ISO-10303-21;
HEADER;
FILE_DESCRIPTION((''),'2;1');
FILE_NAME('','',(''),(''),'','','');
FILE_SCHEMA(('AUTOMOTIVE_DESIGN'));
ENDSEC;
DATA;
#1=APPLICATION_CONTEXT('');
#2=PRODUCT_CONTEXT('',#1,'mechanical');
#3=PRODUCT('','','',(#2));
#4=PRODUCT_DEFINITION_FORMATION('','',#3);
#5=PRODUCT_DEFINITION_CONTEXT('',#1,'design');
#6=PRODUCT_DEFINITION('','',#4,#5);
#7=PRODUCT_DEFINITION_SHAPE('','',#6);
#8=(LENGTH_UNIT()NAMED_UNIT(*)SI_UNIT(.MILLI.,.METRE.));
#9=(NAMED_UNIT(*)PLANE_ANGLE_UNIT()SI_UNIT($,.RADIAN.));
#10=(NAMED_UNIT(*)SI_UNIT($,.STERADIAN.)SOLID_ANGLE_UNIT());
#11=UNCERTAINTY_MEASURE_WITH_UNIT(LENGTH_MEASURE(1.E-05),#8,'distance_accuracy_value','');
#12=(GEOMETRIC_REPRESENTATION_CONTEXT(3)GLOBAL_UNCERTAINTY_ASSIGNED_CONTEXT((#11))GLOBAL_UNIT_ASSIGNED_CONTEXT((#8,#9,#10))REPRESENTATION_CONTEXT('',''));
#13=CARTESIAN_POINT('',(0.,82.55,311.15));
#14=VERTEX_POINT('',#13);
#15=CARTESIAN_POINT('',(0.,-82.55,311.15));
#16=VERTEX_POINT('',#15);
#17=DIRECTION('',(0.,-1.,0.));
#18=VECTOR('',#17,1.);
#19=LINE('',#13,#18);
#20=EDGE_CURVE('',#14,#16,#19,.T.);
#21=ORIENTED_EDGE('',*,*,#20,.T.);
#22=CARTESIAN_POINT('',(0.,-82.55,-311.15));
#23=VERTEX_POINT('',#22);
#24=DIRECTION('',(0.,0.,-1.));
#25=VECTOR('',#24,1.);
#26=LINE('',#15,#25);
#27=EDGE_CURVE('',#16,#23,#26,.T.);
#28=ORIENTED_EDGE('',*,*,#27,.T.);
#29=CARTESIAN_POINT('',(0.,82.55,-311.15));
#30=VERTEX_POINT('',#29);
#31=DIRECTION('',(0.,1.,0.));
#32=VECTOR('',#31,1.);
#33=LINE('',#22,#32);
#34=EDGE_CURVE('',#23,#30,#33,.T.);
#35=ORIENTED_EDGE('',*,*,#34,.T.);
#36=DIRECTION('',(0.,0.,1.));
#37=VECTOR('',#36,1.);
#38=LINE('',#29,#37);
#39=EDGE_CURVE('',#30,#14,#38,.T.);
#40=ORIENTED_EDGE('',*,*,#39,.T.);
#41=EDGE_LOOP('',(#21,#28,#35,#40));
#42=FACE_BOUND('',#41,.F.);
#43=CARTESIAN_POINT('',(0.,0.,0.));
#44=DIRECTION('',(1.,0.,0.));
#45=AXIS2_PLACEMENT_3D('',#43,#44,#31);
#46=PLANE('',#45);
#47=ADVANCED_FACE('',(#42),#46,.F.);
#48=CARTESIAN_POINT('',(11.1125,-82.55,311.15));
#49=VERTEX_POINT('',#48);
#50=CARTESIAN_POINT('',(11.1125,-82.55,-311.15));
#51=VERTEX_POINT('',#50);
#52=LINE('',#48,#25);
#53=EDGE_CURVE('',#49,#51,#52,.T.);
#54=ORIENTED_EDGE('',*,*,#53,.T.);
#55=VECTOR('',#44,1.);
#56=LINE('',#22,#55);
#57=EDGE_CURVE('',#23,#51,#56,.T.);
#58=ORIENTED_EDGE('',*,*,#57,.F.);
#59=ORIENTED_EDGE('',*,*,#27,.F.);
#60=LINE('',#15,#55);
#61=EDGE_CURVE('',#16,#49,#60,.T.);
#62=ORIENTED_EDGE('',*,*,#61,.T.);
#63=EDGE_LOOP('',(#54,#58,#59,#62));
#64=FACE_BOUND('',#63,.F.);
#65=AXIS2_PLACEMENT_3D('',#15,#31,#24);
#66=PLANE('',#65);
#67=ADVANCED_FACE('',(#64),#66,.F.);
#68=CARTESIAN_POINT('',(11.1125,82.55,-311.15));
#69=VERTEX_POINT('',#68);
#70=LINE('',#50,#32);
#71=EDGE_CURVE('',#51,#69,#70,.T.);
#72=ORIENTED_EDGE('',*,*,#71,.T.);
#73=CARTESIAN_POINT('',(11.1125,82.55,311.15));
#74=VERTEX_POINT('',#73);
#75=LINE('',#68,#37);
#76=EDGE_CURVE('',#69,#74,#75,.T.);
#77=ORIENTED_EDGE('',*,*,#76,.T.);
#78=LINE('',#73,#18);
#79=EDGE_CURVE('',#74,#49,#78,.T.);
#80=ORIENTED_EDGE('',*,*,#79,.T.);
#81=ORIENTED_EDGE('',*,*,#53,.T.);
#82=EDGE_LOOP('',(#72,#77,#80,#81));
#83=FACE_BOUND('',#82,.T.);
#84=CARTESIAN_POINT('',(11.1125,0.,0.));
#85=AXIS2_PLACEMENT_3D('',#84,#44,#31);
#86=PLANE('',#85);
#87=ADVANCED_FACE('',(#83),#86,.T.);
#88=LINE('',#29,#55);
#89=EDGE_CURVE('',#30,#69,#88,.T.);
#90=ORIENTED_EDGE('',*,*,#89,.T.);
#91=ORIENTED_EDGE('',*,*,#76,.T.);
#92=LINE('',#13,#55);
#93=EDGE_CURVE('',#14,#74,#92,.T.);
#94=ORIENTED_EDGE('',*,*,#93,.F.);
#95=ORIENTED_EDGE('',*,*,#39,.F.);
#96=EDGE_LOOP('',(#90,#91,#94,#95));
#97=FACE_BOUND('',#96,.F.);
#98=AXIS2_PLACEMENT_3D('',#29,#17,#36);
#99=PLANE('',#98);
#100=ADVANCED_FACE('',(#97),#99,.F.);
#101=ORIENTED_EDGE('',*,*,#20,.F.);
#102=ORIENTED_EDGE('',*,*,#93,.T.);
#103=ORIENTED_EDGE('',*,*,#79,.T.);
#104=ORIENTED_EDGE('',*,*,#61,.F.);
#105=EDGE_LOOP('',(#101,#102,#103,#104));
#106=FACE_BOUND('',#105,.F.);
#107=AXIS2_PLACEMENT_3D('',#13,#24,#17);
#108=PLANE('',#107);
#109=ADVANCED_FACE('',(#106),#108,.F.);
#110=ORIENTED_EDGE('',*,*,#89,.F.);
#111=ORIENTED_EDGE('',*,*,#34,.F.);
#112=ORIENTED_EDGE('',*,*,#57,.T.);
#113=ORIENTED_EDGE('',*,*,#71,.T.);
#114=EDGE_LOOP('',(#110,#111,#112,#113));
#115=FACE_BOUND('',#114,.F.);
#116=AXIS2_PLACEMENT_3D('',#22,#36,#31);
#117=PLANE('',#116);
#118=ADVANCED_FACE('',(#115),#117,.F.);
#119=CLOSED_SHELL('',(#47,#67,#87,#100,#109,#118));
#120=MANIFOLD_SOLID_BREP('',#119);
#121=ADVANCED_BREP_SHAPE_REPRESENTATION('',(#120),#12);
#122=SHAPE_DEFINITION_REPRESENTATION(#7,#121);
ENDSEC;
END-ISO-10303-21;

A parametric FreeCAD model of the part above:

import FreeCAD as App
import Part
import Sketcher
Q = App.Units.Quantity


def add_polygon(sketch, points):
    """Adds a closed chain of lines whose ends are joined by coincident constraints."""
    first, n = sketch.GeometryCount, len(points)
    for a, b in zip(points, points[1:] + points[:1]):
        sketch.addGeometry(Part.LineSegment(App.Vector(*a, 0), App.Vector(*b, 0)), False)
    for i in range(n):
        sketch.addConstraint(Sketcher.Constraint("Coincident", first + i, 2, first + (i + 1) % n, 1))

doc = App.newDocument("Part")
body = doc.addObject("PartDesign::Body", "Body")

# Sketch on YZ plane
sketch1 = body.newObject("Sketcher::SketchObject", "Sketch")
sketch1.AttachmentSupport = (doc.getObject("YZ_Plane"), [""])
sketch1.MapMode = "FlatFace"
add_polygon(sketch1, [(83, 311), (-83, 311), (-83, -311), (83, -311)])  # lines 0-3
sketch1.addConstraint(Sketcher.Constraint("Horizontal", 0))
sketch1.addConstraint(Sketcher.Constraint("Vertical", 1))
sketch1.addConstraint(Sketcher.Constraint("Horizontal", 2))
sketch1.addConstraint(Sketcher.Constraint("Vertical", 3))
sketch1.addConstraint(Sketcher.Constraint("Symmetric", 0, 2, 2, 2, -1, 1))
sketch1.addConstraint(Sketcher.Constraint("DistanceX", 0, 2, 0, 1, Q("6.5 in")))
sketch1.addConstraint(Sketcher.Constraint("DistanceY", 1, 2, 1, 1, Q("24.5 in")))
pad1 = body.newObject("PartDesign::Pad", "Pad")
pad1.Profile = sketch1
pad1.Length = Q("0.4375 in")

doc.recompute()
